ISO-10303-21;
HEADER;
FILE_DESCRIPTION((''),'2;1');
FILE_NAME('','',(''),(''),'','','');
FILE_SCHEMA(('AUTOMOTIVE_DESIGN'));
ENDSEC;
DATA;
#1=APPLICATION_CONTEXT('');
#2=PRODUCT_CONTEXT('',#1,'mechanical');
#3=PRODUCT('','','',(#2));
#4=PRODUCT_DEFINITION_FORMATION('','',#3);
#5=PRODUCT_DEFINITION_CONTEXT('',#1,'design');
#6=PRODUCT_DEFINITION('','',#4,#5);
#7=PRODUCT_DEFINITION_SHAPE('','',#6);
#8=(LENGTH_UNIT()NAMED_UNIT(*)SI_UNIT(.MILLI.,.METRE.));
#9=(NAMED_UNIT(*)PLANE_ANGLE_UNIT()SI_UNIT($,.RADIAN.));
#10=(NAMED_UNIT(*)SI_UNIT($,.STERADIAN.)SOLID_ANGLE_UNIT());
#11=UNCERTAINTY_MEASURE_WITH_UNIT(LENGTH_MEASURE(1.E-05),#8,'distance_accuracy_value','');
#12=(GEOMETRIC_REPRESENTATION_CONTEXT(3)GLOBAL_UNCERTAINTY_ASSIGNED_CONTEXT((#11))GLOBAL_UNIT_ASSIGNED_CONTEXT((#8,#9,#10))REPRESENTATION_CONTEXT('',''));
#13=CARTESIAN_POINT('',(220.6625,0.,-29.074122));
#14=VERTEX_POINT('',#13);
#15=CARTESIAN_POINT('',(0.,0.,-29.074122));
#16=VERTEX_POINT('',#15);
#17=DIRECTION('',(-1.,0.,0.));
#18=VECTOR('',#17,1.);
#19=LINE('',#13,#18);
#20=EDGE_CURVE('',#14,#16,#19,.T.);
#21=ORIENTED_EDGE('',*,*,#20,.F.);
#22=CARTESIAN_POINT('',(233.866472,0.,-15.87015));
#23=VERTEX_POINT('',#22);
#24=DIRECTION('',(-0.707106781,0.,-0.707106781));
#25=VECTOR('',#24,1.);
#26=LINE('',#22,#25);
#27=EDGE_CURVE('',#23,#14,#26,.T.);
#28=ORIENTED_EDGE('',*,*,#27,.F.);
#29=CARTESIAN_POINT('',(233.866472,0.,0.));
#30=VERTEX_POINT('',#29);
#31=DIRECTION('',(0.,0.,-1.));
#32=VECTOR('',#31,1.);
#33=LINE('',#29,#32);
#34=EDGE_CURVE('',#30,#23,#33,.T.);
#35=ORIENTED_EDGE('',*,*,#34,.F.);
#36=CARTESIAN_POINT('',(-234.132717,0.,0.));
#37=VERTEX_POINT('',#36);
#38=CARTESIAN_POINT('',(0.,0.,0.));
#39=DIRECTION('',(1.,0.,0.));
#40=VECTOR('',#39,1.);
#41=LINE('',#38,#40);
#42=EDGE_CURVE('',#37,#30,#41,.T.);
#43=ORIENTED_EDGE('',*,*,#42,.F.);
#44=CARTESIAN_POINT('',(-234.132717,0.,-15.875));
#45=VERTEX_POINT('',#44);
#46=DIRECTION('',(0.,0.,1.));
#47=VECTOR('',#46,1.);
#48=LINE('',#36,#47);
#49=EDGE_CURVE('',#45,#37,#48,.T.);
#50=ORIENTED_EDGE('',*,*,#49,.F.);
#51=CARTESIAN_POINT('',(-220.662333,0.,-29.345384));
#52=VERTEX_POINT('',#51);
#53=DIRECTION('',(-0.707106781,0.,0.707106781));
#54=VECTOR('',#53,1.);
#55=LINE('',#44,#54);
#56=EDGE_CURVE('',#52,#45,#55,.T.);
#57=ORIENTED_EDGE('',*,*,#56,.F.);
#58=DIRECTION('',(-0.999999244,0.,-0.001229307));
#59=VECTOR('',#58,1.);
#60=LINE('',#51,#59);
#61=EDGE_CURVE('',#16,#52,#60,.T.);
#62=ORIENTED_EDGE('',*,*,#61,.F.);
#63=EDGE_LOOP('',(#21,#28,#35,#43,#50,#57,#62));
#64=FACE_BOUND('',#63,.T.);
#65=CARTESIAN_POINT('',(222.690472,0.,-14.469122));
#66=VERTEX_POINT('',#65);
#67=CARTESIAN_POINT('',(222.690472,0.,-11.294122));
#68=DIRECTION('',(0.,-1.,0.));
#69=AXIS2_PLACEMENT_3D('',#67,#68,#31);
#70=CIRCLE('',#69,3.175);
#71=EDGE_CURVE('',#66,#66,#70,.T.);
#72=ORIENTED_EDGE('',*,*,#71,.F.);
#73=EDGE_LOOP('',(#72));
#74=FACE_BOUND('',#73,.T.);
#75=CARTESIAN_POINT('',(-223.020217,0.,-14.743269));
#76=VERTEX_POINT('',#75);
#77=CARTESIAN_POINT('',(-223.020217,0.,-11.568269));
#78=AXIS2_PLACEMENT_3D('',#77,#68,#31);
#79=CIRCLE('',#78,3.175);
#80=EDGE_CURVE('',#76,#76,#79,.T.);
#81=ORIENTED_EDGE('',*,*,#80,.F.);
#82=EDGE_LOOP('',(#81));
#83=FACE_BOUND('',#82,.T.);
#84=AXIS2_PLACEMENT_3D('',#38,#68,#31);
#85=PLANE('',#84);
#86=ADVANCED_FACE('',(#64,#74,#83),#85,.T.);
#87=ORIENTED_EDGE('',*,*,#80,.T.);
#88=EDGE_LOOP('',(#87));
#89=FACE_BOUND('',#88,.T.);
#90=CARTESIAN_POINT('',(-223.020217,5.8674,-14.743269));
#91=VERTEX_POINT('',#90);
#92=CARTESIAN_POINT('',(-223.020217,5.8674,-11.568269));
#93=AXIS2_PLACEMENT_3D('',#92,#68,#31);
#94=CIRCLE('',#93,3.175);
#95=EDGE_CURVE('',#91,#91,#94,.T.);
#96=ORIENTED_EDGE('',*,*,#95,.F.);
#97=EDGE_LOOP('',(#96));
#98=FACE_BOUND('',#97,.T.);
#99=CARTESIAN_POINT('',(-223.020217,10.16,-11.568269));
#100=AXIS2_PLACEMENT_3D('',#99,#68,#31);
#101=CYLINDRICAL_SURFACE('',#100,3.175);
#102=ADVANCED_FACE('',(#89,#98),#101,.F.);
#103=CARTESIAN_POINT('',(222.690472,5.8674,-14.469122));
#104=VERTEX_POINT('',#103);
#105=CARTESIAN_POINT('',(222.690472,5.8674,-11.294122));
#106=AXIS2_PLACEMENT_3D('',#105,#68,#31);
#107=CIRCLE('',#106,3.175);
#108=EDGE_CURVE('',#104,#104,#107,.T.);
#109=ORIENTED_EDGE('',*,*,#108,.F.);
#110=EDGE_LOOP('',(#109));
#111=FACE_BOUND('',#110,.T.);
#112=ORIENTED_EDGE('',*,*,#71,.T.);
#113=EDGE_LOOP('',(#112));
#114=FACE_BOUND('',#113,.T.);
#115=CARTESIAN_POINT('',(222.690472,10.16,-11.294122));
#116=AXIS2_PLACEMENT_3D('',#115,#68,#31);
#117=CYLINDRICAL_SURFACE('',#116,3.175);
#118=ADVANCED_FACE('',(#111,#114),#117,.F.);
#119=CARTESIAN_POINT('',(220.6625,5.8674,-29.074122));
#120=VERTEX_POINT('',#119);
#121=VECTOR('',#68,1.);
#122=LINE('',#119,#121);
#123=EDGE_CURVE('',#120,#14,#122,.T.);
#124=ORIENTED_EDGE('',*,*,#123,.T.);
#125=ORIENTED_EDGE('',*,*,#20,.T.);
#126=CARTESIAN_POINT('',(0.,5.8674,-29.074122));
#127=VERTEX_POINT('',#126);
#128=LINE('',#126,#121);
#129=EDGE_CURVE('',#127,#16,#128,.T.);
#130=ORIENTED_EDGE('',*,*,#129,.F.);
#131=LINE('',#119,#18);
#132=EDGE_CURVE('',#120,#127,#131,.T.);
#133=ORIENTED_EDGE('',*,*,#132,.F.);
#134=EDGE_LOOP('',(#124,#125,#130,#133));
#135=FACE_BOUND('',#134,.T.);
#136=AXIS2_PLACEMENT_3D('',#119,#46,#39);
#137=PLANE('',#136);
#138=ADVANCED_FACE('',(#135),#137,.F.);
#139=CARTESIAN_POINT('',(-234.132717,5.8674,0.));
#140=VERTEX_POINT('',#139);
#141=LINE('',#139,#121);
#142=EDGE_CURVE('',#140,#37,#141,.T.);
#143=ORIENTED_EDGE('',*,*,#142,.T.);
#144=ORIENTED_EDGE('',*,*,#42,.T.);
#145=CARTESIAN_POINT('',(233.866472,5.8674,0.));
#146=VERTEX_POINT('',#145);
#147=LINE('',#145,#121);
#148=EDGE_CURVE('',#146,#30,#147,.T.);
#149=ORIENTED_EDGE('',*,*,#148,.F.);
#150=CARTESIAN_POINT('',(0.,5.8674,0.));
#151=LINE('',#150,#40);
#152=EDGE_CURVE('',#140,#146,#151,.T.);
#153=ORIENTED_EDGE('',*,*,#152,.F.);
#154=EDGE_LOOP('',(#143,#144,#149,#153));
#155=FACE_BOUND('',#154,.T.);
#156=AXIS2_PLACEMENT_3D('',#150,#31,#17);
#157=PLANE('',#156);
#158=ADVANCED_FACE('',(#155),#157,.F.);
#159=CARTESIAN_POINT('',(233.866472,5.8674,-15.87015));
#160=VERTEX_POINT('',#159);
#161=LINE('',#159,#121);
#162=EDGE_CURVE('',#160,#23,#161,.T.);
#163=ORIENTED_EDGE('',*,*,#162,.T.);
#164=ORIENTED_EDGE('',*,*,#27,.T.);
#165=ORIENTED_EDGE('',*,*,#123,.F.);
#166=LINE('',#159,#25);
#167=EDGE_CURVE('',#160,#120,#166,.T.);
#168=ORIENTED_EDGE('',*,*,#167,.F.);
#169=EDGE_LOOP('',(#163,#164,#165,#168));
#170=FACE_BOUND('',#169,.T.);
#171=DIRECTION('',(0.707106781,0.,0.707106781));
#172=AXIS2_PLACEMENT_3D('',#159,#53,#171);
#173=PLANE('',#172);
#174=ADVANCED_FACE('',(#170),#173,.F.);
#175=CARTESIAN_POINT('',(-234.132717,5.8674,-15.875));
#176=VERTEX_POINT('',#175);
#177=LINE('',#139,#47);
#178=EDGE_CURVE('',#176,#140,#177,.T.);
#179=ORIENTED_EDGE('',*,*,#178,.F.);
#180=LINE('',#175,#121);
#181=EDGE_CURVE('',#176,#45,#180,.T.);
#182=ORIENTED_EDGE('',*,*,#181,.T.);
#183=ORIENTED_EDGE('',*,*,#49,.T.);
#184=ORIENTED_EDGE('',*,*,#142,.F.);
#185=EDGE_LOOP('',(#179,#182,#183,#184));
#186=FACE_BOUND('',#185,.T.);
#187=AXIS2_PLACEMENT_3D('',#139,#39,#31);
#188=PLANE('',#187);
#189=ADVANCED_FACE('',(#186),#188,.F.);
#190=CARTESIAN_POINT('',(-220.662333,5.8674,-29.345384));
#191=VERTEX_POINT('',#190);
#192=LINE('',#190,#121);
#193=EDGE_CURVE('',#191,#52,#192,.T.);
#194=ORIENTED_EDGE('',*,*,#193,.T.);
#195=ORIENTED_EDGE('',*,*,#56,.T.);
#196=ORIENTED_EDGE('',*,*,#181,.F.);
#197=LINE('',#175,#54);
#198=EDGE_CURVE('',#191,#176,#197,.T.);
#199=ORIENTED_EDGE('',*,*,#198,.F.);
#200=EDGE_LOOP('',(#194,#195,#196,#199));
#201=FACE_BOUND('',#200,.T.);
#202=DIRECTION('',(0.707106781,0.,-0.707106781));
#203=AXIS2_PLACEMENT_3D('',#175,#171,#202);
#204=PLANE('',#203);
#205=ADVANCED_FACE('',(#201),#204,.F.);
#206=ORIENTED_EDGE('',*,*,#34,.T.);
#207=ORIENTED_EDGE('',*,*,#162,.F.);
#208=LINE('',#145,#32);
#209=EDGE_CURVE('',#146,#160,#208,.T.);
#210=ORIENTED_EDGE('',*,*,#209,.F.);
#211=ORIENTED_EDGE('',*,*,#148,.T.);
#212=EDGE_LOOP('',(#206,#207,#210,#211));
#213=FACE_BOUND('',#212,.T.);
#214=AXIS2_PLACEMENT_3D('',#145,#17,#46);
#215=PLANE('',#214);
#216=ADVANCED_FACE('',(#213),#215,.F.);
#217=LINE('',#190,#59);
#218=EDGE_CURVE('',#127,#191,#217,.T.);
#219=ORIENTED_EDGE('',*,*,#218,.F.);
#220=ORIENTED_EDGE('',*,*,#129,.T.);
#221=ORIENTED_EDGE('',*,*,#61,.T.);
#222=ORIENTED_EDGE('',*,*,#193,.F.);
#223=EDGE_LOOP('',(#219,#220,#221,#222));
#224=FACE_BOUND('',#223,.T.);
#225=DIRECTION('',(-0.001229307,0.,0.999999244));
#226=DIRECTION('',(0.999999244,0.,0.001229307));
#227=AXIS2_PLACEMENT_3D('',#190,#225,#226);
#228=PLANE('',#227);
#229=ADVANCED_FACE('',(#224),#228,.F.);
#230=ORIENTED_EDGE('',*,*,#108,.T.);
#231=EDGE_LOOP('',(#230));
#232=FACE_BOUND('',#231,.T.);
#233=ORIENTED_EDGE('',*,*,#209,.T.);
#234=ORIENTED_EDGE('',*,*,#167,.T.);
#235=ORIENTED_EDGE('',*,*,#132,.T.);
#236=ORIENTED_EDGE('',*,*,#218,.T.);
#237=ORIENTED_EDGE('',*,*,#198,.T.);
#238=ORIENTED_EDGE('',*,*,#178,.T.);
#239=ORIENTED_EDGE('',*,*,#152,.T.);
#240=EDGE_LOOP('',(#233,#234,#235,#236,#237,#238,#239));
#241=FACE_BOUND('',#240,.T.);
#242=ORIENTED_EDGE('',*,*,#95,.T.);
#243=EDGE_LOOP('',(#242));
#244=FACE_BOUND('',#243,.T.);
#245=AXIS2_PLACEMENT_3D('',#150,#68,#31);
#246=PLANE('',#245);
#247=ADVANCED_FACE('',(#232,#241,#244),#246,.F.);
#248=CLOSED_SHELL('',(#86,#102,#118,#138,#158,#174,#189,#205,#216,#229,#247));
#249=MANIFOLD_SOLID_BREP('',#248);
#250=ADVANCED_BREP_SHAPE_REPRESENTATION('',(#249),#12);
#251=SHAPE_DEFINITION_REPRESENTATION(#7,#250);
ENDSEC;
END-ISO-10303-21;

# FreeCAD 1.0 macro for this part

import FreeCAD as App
import Part
import Sketcher
Q = App.Units.Quantity


def add_polygon(sketch, points):
    """Adds a closed chain of lines whose ends are joined by coincident constraints."""
    first, n = sketch.GeometryCount, len(points)
    for a, b in zip(points, points[1:] + points[:1]):
        sketch.addGeometry(Part.LineSegment(App.Vector(*a, 0), App.Vector(*b, 0)), False)
    for i in range(n):
        sketch.addConstraint(Sketcher.Constraint("Coincident", first + i, 2, first + (i + 1) % n, 1))

doc = App.newDocument("Part")
body = doc.addObject("PartDesign::Body", "Body")

# Sketch on XZ plane
sketch1 = body.newObject("Sketcher::SketchObject", "Sketch")
sketch1.AttachmentSupport = (doc.getObject("XZ_Plane"), [""])
sketch1.MapMode = "FlatFace"
add_polygon(sketch1, [(234, 0), (234, -16), (221, -29), (0, -29), (-221, -29), (-234, -16), (-234, 0)])  # lines 0-6
sketch1.addConstraint(Sketcher.Constraint("Vertical", 0))
sketch1.addConstraint(Sketcher.Constraint("Horizontal", 2))
sketch1.addConstraint(Sketcher.Constraint("Vertical", 5))
sketch1.addConstraint(Sketcher.Constraint("Horizontal", 6))
sketch1.addConstraint(Sketcher.Constraint("PointOnObject", 2, 2, -2))
sketch1.addConstraint(Sketcher.Constraint("PointOnObject", 5, 2, -1))
sketch1.addConstraint(Sketcher.Constraint("Perpendicular", 1, 4))
sketch1.addConstraint(Sketcher.Constraint("Angle", 1, Q("-135 deg")))
sketch1.addConstraint(Sketcher.Constraint("Distance", 4, Q("0.75 in")))
sketch1.addConstraint(Sketcher.Constraint("DistanceX", 2, 2, 2, 1, Q("8.6875 in")))
sketch1.addConstraint(Sketcher.Constraint("DistanceY", 5, 1, 5, 2, Q("0.625 in")))
sketch1.addConstraint(Sketcher.Constraint("Distance", 3, Q("8.6875 in")))
sketch1.addConstraint(Sketcher.Constraint("DistanceX", 6, 1, 6, 2, Q("467.99919 mm")))
sketch1.addConstraint(Sketcher.Constraint("DistanceY", 0, 2, 0, 1, Q("15.87015 mm")))
pad1 = body.newObject("PartDesign::Pad", "Pad")
pad1.Profile = sketch1
pad1.Length = Q("0.231 in")
pad1.Reversed = True

# Sketch on XZ plane
sketch2 = body.newObject("Sketcher::SketchObject", "Sketch001")
sketch2.AttachmentSupport = (doc.getObject("XZ_Plane"), [""])
sketch2.MapMode = "FlatFace"
sketch2.addGeometry(Part.Circle(App.Vector(-223, -11.6, 0), App.Vector(0, 0, 1), 3.2), False)
sketch2.addConstraint(Sketcher.Constraint("Diameter", 0, Q("0.25 in")))
sketch2.addConstraint(Sketcher.Constraint("DistanceY", 0, 3, -1, 1, Q("11.568269 mm")))
sketch2.addConstraint(Sketcher.Constraint("DistanceX", 0, 3, -1, 1, Q("223.020217 mm")))
pocket1 = body.newObject("PartDesign::Pocket", "Pocket")
pocket1.Profile = sketch2
pocket1.Length = Q("0.4 in")

# Sketch on XZ plane
sketch3 = body.newObject("Sketcher::SketchObject", "Sketch002")
sketch3.AttachmentSupport = (doc.getObject("XZ_Plane"), [""])
sketch3.MapMode = "FlatFace"
sketch3.addGeometry(Part.Circle(App.Vector(222.7, -11.3, 0), App.Vector(0, 0, 1), 3.2), False)
sketch3.addConstraint(Sketcher.Constraint("Diameter", 0, Q("0.25 in")))
sketch3.addConstraint(Sketcher.Constraint("DistanceX", -1, 1, 0, 3, Q("222.690472 mm")))
sketch3.addConstraint(Sketcher.Constraint("DistanceY", 0, 3, -1, 1, Q("11.294122 mm")))
pocket2 = body.newObject("PartDesign::Pocket", "Pocket001")
pocket2.Profile = sketch3
pocket2.Length = Q("0.4 in")

doc.recompute()
